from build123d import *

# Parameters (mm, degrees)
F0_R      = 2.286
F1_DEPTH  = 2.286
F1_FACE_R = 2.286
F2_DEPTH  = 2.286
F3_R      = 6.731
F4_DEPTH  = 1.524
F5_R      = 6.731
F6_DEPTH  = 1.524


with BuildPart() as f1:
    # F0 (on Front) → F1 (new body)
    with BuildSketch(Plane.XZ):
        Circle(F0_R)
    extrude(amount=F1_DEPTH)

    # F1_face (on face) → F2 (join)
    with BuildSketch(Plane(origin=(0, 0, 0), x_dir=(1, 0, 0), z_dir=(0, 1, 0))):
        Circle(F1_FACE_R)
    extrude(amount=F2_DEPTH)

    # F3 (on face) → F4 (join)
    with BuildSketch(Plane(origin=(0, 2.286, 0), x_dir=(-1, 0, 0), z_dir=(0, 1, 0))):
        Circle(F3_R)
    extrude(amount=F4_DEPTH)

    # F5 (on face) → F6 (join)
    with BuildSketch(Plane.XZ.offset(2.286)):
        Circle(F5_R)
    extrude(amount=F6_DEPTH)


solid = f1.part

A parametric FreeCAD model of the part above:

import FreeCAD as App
import Part
import Sketcher
from FreeCAD import Vector
Q = App.Units.Quantity

doc = App.newDocument("Part")
body = doc.addObject("PartDesign::Body", "Body")

# Sketch on XZ plane
sketch1 = body.newObject("Sketcher::SketchObject", "Sketch")
sketch1.AttachmentSupport = (doc.getObject("XZ_Plane"), [""])
sketch1.MapMode = "FlatFace"
sketch1.addGeometry(Part.Circle(Vector(0, 0, 0), Vector(0, 0, 1), 2.3), False)
sketch1.addConstraint([
    Sketcher.Constraint("Coincident", 0, 3, -1, 1),
    Sketcher.Constraint("Diameter", 0, Q("0.18 in")),
])
pad1 = body.newObject("PartDesign::Pad", "Pad")
pad1.Profile = sketch1
pad1.Length = Q("0.09 in")

# Sketch on XZ plane
sketch2 = body.newObject("Sketcher::SketchObject", "Sketch001")
sketch2.AttachmentSupport = (doc.getObject("XZ_Plane"), [""])
sketch2.MapMode = "FlatFace"
sketch2.addGeometry(Part.Circle(Vector(0, 0, 0), Vector(0, 0, 1), 2.3), False)
sketch2.addConstraint([
    Sketcher.Constraint("Coincident", 0, 3, -1, 1),
    Sketcher.Constraint("Diameter", 0, Q("0.18 in")),
])
pad2 = body.newObject("PartDesign::Pad", "Pad001")
pad2.Profile = sketch2
pad2.Length = Q("0.09 in")
pad2.Reversed = True

# Sketch on XZ plane
sketch3 = body.newObject("Sketcher::SketchObject", "Sketch002")
sketch3.AttachmentSupport = (doc.getObject("XZ_Plane"), [""])
sketch3.MapMode = "FlatFace"
sketch3.AttachmentOffset = App.Placement(Vector(0, 0, -0.09 * 25.4), App.Rotation())
sketch3.addGeometry(Part.Circle(Vector(0, 0, 0), Vector(0, 0, 1), 7), False)
sketch3.addConstraint([
    Sketcher.Constraint("Coincident", 0, 3, -1, 1),
    Sketcher.Constraint("Diameter", 0, Q("0.53 in")),
])
pad3 = body.newObject("PartDesign::Pad", "Pad002")
pad3.Profile = sketch3
pad3.Length = Q("0.06 in")
pad3.Reversed = True

# Sketch on XZ plane
sketch4 = body.newObject("Sketcher::SketchObject", "Sketch003")
sketch4.AttachmentSupport = (doc.getObject("XZ_Plane"), [""])
sketch4.MapMode = "FlatFace"
sketch4.AttachmentOffset = App.Placement(Vector(0, 0, 0.09 * 25.4), App.Rotation())
sketch4.addGeometry(Part.Circle(Vector(0, 0, 0), Vector(0, 0, 1), 7), False)
sketch4.addConstraint([
    Sketcher.Constraint("Coincident", 0, 3, -1, 1),
    Sketcher.Constraint("Diameter", 0, Q("0.53 in")),
])
pad4 = body.newObject("PartDesign::Pad", "Pad003")
pad4.Profile = sketch4
pad4.Length = Q("0.06 in")

doc.recompute()
